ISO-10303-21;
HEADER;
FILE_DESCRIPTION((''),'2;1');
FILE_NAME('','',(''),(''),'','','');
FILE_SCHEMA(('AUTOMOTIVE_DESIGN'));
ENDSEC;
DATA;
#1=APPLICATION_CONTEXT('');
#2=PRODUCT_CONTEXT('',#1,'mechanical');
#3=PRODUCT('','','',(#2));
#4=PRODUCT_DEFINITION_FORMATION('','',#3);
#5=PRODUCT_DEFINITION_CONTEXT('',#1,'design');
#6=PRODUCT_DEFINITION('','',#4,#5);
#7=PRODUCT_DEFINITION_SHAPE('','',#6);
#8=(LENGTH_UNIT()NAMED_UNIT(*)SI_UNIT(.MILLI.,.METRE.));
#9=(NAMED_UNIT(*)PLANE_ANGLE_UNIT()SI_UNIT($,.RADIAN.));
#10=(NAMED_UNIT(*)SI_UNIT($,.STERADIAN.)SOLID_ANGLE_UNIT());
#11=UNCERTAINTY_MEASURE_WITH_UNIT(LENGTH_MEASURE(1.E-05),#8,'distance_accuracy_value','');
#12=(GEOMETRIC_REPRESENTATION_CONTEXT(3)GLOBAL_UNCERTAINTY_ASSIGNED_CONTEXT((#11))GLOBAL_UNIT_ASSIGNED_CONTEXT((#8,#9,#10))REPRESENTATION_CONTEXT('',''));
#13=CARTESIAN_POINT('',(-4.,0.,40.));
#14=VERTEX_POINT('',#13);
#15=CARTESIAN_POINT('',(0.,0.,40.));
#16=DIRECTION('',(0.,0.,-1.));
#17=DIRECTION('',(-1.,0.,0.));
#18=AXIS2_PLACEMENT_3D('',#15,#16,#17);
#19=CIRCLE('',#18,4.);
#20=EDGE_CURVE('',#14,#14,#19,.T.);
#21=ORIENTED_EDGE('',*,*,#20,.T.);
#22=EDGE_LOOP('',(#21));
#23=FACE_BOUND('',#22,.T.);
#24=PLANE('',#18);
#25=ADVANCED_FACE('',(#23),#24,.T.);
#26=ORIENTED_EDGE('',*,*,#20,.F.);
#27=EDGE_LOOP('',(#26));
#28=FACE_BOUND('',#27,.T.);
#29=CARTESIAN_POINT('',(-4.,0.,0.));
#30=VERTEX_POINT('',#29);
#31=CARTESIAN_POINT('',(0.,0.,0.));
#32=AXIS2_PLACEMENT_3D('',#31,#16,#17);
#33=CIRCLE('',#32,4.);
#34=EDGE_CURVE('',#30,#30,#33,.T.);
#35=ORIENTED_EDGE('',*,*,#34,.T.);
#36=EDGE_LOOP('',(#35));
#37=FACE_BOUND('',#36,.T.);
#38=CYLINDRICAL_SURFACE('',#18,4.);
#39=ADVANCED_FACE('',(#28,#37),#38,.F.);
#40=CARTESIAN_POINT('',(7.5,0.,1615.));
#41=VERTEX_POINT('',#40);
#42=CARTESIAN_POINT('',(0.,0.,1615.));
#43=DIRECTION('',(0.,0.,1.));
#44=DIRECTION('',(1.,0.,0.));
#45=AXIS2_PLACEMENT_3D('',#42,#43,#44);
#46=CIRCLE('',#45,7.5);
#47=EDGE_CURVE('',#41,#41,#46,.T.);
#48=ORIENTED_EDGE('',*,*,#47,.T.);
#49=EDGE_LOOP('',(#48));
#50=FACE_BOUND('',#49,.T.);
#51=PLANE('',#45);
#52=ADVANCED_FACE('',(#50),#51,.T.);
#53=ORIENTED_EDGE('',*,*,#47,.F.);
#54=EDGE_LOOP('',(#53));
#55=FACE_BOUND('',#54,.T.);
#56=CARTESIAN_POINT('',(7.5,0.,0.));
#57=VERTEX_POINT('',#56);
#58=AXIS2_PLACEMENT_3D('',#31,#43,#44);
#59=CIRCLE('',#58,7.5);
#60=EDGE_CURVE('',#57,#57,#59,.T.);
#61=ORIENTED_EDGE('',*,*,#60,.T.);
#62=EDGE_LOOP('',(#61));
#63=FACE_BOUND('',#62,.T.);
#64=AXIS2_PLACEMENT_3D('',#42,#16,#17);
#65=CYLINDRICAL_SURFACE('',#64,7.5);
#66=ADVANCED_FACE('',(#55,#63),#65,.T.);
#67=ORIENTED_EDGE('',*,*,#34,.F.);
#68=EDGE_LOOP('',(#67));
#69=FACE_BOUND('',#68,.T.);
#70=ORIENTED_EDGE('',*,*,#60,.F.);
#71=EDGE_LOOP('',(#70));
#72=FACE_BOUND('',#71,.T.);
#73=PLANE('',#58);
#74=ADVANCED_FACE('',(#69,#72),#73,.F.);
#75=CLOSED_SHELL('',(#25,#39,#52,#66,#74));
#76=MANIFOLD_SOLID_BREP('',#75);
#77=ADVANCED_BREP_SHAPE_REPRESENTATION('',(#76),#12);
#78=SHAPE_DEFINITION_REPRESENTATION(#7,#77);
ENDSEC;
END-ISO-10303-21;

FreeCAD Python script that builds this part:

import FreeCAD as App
import Part
import Sketcher

V = App.Vector

doc = App.newDocument("Part")
body = doc.addObject("PartDesign::Body", "Body")

# Sketch on XY plane
sketch1 = body.newObject("Sketcher::SketchObject", "Sketch")
sketch1.AttachmentSupport = (doc.getObject("XY_Plane"), [""])
sketch1.MapMode = "FlatFace"
sketch1.addGeometry(Part.Circle(V(0, 0, 0), V(0, 0, 1), 7.5), False)
sketch1.addConstraint([
    Sketcher.Constraint("Coincident", 0, 3, -1, 1),
    Sketcher.Constraint("Diameter", 0, 15.0),
])
pad1 = body.newObject("PartDesign::Pad", "Pad")
pad1.Profile = sketch1
pad1.Length = 1615

# Sketch on XY plane
sketch2 = body.newObject("Sketcher::SketchObject", "Sketch001")
sketch2.AttachmentSupport = (doc.getObject("XY_Plane"), [""])
sketch2.MapMode = "FlatFace"
sketch2.addGeometry(Part.Circle(V(0, 0, 0), V(0, 0, 1), 4), False)
sketch2.addConstraint([
    Sketcher.Constraint("Coincident", 0, 3, -1, 1),
    Sketcher.Constraint("Diameter", 0, 8.0),
])
pocket1 = body.newObject("PartDesign::Pocket", "Pocket")
pocket1.Profile = sketch2
pocket1.Length = 40
pocket1.Reversed = True

doc.recompute()
